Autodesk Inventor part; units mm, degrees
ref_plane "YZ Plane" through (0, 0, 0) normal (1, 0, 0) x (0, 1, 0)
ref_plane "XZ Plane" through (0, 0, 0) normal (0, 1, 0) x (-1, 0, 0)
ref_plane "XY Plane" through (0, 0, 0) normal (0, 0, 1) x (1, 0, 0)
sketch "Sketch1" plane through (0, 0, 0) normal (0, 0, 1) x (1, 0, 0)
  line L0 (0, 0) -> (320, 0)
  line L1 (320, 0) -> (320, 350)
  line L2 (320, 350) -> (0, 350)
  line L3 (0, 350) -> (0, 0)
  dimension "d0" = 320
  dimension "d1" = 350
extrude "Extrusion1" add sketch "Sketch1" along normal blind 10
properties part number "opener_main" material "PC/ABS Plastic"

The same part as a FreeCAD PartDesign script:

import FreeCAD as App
import Part
import Sketcher
Q = App.Units.Quantity

doc = App.newDocument("Part")
body = doc.addObject("PartDesign::Body", "Body")

# Sketch on XY plane
sketch1 = body.newObject("Sketcher::SketchObject", "Sketch")
sketch1.AttachmentSupport = (doc.getObject("XY_Plane"), [""])
sketch1.MapMode = "FlatFace"
sketch1.addGeometry(Part.LineSegment(App.Vector(0, 350, 0), App.Vector(0, 0, 0)), False)
sketch1.addGeometry(Part.LineSegment(App.Vector(0, 0, 0), App.Vector(320, 0, 0)), False)
sketch1.addGeometry(Part.LineSegment(App.Vector(320, 0, 0), App.Vector(320, 350, 0)), False)
sketch1.addGeometry(Part.LineSegment(App.Vector(320, 350, 0), App.Vector(0, 350, 0)), False)
sketch1.addConstraint(Sketcher.Constraint("Coincident", 0, 2, 1, 1))
sketch1.addConstraint(Sketcher.Constraint("Coincident", 1, 2, 2, 1))
sketch1.addConstraint(Sketcher.Constraint("Coincident", 2, 2, 3, 1))
sketch1.addConstraint(Sketcher.Constraint("Coincident", 3, 2, 0, 1))
sketch1.addConstraint(Sketcher.Constraint("Vertical", 0))
sketch1.addConstraint(Sketcher.Constraint("Horizontal", 1))
sketch1.addConstraint(Sketcher.Constraint("Vertical", 2))
sketch1.addConstraint(Sketcher.Constraint("Horizontal", 3))
sketch1.addConstraint(Sketcher.Constraint("Coincident", 0, 2, -1, 1))
sketch1.addConstraint(Sketcher.Constraint("DistanceX", 1, 1, 1, 2, Q("320 mm")))
sketch1.addConstraint(Sketcher.Constraint("DistanceY", 0, 2, 0, 1, Q("350 mm")))
pad1 = body.newObject("PartDesign::Pad", "Pad")
pad1.Profile = sketch1
pad1.Length = 10

doc.recompute()
